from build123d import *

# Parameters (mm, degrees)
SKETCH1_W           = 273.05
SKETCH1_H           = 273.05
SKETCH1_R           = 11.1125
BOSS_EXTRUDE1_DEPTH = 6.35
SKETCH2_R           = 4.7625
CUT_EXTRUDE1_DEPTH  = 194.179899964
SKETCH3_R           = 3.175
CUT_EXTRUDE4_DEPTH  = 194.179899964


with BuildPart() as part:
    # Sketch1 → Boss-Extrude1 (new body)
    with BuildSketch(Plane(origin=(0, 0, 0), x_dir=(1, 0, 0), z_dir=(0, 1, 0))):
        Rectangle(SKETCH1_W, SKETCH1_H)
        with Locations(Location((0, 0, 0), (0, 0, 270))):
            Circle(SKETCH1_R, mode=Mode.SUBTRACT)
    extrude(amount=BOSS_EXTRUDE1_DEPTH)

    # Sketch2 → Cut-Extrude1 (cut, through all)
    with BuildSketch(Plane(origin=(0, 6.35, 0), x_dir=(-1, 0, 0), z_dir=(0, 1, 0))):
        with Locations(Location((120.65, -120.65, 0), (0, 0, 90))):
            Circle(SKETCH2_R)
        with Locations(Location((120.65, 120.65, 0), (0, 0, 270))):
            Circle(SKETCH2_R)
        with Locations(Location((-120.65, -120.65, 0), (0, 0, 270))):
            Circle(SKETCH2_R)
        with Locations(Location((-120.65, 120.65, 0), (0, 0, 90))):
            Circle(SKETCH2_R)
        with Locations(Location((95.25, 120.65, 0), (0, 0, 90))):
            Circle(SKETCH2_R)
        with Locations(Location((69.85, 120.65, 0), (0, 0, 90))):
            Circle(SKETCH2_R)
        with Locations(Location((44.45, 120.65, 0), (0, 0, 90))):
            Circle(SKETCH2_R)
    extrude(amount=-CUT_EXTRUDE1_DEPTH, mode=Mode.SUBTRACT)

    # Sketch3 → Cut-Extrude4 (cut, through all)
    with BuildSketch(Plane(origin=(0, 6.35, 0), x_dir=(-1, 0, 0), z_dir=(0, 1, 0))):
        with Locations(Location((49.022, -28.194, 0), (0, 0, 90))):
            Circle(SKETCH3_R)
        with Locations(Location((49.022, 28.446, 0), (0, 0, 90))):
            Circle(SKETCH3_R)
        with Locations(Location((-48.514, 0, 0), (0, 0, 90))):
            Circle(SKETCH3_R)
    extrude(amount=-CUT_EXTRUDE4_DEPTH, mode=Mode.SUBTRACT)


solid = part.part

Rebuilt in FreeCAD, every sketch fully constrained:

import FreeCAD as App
import Part
import Sketcher
from FreeCAD import Vector
Q = App.Units.Quantity


def add_polygon(sketch, points):
    """Adds a closed chain of lines whose ends are joined by coincident constraints."""
    first, n = sketch.GeometryCount, len(points)
    for a, b in zip(points, points[1:] + points[:1]):
        sketch.addGeometry(Part.LineSegment(App.Vector(*a, 0), App.Vector(*b, 0)), False)
    for i in range(n):
        sketch.addConstraint(Sketcher.Constraint("Coincident", first + i, 2, first + (i + 1) % n, 1))

doc = App.newDocument("Part")
body = doc.addObject("PartDesign::Body", "Body")

# Sketch on XZ plane
sketch1 = body.newObject("Sketcher::SketchObject", "Sketch")
sketch1.AttachmentSupport = (doc.getObject("XZ_Plane"), [""])
sketch1.MapMode = "FlatFace"
add_polygon(sketch1, [(-137, -137), (-137, 137), (137, 137), (137, -137)])  # lines 0-3
sketch1.addGeometry(Part.Circle(Vector(0, 0, 0), Vector(0, 0, 1), 11), False)  # 4
sketch1.addConstraint([
    Sketcher.Constraint("Vertical", 0),
    Sketcher.Constraint("Horizontal", 1),
    Sketcher.Constraint("Vertical", 2),
    Sketcher.Constraint("Horizontal", 3),
    Sketcher.Constraint("Coincident", 4, 3, -1, 1),
    Sketcher.Constraint("Symmetric", 0, 2, 2, 2, -1, 1),
    Sketcher.Constraint("Equal", 3, 0),
    Sketcher.Constraint("Diameter", 4, Q("0.875 in")),
    Sketcher.Constraint("DistanceX", 1, 1, 1, 2, Q("10.75 in")),
])
pad1 = body.newObject("PartDesign::Pad", "Pad")
pad1.Profile = sketch1
pad1.Length = Q("0.25 in")
pad1.Reversed = True

# Sketch on XZ plane
sketch2 = body.newObject("Sketcher::SketchObject", "Sketch001")
sketch2.AttachmentSupport = (doc.getObject("XZ_Plane"), [""])
sketch2.MapMode = "FlatFace"
sketch2.AttachmentOffset = App.Placement(Vector(0, 0, -0.25 * 25.4), App.Rotation())
sketch2.addGeometry([
    Part.Circle(Vector(-120.7, -120.7, 0), Vector(0, 0, 1), 4.8),  # 0
    Part.Circle(Vector(-120.7, 120.7, 0), Vector(0, 0, 1), 4.8),  # 1
    Part.Circle(Vector(120.7, -120.7, 0), Vector(0, 0, 1), 4.8),  # 2
    Part.Circle(Vector(120.7, 120.7, 0), Vector(0, 0, 1), 4.8),  # 3
    Part.Circle(Vector(-95.2, 120.7, 0), Vector(0, 0, 1), 4.8),  # 4
    Part.Circle(Vector(-69.8, 120.7, 0), Vector(0, 0, 1), 4.8),  # 5
    Part.Circle(Vector(-44.5, 120.7, 0), Vector(0, 0, 1), 4.8),  # 6
], False)
sketch2.addConstraint([
    Sketcher.Constraint("Equal", 0, 1),
    Sketcher.Constraint("Equal", 1, 2),
    Sketcher.Constraint("Equal", 2, 3),
    Sketcher.Constraint("Equal", 3, 4),
    Sketcher.Constraint("Equal", 4, 5),
    Sketcher.Constraint("Equal", 5, 6),
    Sketcher.Constraint("Symmetric", 1, 3, 2, 3, -1, 1),
    Sketcher.Constraint("Symmetric", 0, 3, 3, 3, -1, 1),
    Sketcher.Constraint("Symmetric", 0, 3, 2, 3, -2),
    Sketcher.Constraint("Horizontal", 3, 3, 4, 3),
    Sketcher.Constraint("Horizontal", 4, 3, 5, 3),
    Sketcher.Constraint("Horizontal", 5, 3, 6, 3),
    Sketcher.Constraint("Diameter", 0, Q("0.375 in")),
    Sketcher.Constraint("DistanceX", 1, 3, 4, 3, Q("1 in")),
    Sketcher.Constraint("DistanceX", 4, 3, 5, 3, Q("1 in")),
    Sketcher.Constraint("DistanceX", 5, 3, 6, 3, Q("1 in")),
    Sketcher.Constraint("DistanceY", 0, 3, 1, 3, Q("9.5 in")),
    Sketcher.Constraint("DistanceX", 0, 3, 2, 3, Q("9.5 in")),
])
pocket1 = body.newObject("PartDesign::Pocket", "Pocket")
pocket1.Profile = sketch2
pocket1.Type = "ThroughAll"
pocket1.Reversed = True

# Sketch on XZ plane
sketch3 = body.newObject("Sketcher::SketchObject", "Sketch002")
sketch3.AttachmentSupport = (doc.getObject("XZ_Plane"), [""])
sketch3.MapMode = "FlatFace"
sketch3.AttachmentOffset = App.Placement(Vector(0, 0, -0.25 * 25.4), App.Rotation())
sketch3.addGeometry([
    Part.Circle(Vector(-49, -28.2, 0), Vector(0, 0, 1), 3.2),
    Part.Circle(Vector(-49, 28.4, 0), Vector(0, 0, 1), 3.2),
    Part.Circle(Vector(48.5, 0, 0), Vector(0, 0, 1), 3.2),
], False)
sketch3.addConstraint([
    Sketcher.Constraint("Equal", 0, 1),
    Sketcher.Constraint("Equal", 1, 2),
    Sketcher.Constraint("PointOnObject", 2, 3, -1),
    Sketcher.Constraint("Vertical", 0, 3, 1, 3),
    Sketcher.Constraint("Diameter", 0, Q("0.25 in")),
    Sketcher.Constraint("DistanceX", 0, 3, -1, 1, Q("1.93 in")),
    Sketcher.Constraint("DistanceY", 0, 3, -1, 1, Q("1.11 in")),
    Sketcher.Constraint("DistanceX", -1, 1, 2, 3, Q("1.91 in")),
    Sketcher.Constraint("DistanceY", -1, 1, 1, 3, 28.446),
])
pocket2 = body.newObject("PartDesign::Pocket", "Pocket001")
pocket2.Profile = sketch3
pocket2.Type = "ThroughAll"
pocket2.Reversed = True

doc.recompute()
